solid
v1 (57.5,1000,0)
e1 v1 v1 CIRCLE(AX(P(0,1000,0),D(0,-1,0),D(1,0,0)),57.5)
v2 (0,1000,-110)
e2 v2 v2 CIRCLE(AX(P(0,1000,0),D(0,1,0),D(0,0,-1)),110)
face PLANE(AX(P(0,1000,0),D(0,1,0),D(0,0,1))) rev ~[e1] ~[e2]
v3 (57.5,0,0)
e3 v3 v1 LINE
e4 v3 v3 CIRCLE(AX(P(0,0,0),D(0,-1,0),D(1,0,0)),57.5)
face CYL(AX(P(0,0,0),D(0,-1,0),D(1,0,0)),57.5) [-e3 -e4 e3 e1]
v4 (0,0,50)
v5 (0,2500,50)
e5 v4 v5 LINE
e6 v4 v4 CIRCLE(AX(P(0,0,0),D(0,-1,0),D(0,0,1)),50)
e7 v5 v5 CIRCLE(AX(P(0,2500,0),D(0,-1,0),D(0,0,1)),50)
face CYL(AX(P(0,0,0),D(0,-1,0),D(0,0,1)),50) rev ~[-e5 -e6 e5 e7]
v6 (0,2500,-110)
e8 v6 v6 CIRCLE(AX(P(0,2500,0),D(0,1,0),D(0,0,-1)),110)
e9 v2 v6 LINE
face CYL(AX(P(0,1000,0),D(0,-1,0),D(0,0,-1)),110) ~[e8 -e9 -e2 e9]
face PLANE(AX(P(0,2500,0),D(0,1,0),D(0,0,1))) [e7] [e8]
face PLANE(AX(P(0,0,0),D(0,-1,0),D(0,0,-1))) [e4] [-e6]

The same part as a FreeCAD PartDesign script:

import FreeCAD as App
import Part
import Sketcher

doc = App.newDocument("Part")
body = doc.addObject("PartDesign::Body", "Body")

sketch1 = body.newObject("Sketcher::SketchObject", "Sketch")
sketch1.AttachmentSupport = (doc.getObject("XZ_Plane"), [""])
sketch1.MapMode = "FlatFace"
sketch1.addGeometry(Part.Circle(App.Vector(0, 0, 0), App.Vector(0, 0, 1), 57.5), False)
sketch1.addConstraint([
    Sketcher.Constraint("Coincident", 0, 3, -1, 1),
    Sketcher.Constraint("Diameter", 0, 115.0),
])
pad1 = body.newObject("PartDesign::Pad", "Pad")
pad1.Profile = sketch1
pad1.Length = 1000
pad1.Reversed = True

sketch2 = body.newObject("Sketcher::SketchObject", "Sketch001")
sketch2.AttachmentSupport = (doc.getObject("XZ_Plane"), [""])
sketch2.MapMode = "FlatFace"
sketch2.AttachmentOffset = App.Placement(App.Vector(0, 0, -1000), App.Rotation())
sketch2.addGeometry(Part.Circle(App.Vector(0, 0, 0), App.Vector(0, 0, 1), 110), False)
sketch2.addConstraint([
    Sketcher.Constraint("Coincident", 0, 3, -1, 1),
    Sketcher.Constraint("Diameter", 0, 220.0),
])
pad2 = body.newObject("PartDesign::Pad", "Pad001")
pad2.Profile = sketch2
pad2.Length = 1500
pad2.Reversed = True

sketch3 = body.newObject("Sketcher::SketchObject", "Sketch002")
sketch3.AttachmentSupport = (doc.getObject("XZ_Plane"), [""])
sketch3.MapMode = "FlatFace"
sketch3.addGeometry(Part.Circle(App.Vector(0, 0, 0), App.Vector(0, 0, 1), 50), False)
sketch3.addConstraint([
    Sketcher.Constraint("Coincident", 0, 3, -1, 1),
    Sketcher.Constraint("Diameter", 0, 100.0),
])
pocket1 = body.newObject("PartDesign::Pocket", "Pocket")
pocket1.Profile = sketch3
pocket1.Length = 2746.3549

doc.recompute()
